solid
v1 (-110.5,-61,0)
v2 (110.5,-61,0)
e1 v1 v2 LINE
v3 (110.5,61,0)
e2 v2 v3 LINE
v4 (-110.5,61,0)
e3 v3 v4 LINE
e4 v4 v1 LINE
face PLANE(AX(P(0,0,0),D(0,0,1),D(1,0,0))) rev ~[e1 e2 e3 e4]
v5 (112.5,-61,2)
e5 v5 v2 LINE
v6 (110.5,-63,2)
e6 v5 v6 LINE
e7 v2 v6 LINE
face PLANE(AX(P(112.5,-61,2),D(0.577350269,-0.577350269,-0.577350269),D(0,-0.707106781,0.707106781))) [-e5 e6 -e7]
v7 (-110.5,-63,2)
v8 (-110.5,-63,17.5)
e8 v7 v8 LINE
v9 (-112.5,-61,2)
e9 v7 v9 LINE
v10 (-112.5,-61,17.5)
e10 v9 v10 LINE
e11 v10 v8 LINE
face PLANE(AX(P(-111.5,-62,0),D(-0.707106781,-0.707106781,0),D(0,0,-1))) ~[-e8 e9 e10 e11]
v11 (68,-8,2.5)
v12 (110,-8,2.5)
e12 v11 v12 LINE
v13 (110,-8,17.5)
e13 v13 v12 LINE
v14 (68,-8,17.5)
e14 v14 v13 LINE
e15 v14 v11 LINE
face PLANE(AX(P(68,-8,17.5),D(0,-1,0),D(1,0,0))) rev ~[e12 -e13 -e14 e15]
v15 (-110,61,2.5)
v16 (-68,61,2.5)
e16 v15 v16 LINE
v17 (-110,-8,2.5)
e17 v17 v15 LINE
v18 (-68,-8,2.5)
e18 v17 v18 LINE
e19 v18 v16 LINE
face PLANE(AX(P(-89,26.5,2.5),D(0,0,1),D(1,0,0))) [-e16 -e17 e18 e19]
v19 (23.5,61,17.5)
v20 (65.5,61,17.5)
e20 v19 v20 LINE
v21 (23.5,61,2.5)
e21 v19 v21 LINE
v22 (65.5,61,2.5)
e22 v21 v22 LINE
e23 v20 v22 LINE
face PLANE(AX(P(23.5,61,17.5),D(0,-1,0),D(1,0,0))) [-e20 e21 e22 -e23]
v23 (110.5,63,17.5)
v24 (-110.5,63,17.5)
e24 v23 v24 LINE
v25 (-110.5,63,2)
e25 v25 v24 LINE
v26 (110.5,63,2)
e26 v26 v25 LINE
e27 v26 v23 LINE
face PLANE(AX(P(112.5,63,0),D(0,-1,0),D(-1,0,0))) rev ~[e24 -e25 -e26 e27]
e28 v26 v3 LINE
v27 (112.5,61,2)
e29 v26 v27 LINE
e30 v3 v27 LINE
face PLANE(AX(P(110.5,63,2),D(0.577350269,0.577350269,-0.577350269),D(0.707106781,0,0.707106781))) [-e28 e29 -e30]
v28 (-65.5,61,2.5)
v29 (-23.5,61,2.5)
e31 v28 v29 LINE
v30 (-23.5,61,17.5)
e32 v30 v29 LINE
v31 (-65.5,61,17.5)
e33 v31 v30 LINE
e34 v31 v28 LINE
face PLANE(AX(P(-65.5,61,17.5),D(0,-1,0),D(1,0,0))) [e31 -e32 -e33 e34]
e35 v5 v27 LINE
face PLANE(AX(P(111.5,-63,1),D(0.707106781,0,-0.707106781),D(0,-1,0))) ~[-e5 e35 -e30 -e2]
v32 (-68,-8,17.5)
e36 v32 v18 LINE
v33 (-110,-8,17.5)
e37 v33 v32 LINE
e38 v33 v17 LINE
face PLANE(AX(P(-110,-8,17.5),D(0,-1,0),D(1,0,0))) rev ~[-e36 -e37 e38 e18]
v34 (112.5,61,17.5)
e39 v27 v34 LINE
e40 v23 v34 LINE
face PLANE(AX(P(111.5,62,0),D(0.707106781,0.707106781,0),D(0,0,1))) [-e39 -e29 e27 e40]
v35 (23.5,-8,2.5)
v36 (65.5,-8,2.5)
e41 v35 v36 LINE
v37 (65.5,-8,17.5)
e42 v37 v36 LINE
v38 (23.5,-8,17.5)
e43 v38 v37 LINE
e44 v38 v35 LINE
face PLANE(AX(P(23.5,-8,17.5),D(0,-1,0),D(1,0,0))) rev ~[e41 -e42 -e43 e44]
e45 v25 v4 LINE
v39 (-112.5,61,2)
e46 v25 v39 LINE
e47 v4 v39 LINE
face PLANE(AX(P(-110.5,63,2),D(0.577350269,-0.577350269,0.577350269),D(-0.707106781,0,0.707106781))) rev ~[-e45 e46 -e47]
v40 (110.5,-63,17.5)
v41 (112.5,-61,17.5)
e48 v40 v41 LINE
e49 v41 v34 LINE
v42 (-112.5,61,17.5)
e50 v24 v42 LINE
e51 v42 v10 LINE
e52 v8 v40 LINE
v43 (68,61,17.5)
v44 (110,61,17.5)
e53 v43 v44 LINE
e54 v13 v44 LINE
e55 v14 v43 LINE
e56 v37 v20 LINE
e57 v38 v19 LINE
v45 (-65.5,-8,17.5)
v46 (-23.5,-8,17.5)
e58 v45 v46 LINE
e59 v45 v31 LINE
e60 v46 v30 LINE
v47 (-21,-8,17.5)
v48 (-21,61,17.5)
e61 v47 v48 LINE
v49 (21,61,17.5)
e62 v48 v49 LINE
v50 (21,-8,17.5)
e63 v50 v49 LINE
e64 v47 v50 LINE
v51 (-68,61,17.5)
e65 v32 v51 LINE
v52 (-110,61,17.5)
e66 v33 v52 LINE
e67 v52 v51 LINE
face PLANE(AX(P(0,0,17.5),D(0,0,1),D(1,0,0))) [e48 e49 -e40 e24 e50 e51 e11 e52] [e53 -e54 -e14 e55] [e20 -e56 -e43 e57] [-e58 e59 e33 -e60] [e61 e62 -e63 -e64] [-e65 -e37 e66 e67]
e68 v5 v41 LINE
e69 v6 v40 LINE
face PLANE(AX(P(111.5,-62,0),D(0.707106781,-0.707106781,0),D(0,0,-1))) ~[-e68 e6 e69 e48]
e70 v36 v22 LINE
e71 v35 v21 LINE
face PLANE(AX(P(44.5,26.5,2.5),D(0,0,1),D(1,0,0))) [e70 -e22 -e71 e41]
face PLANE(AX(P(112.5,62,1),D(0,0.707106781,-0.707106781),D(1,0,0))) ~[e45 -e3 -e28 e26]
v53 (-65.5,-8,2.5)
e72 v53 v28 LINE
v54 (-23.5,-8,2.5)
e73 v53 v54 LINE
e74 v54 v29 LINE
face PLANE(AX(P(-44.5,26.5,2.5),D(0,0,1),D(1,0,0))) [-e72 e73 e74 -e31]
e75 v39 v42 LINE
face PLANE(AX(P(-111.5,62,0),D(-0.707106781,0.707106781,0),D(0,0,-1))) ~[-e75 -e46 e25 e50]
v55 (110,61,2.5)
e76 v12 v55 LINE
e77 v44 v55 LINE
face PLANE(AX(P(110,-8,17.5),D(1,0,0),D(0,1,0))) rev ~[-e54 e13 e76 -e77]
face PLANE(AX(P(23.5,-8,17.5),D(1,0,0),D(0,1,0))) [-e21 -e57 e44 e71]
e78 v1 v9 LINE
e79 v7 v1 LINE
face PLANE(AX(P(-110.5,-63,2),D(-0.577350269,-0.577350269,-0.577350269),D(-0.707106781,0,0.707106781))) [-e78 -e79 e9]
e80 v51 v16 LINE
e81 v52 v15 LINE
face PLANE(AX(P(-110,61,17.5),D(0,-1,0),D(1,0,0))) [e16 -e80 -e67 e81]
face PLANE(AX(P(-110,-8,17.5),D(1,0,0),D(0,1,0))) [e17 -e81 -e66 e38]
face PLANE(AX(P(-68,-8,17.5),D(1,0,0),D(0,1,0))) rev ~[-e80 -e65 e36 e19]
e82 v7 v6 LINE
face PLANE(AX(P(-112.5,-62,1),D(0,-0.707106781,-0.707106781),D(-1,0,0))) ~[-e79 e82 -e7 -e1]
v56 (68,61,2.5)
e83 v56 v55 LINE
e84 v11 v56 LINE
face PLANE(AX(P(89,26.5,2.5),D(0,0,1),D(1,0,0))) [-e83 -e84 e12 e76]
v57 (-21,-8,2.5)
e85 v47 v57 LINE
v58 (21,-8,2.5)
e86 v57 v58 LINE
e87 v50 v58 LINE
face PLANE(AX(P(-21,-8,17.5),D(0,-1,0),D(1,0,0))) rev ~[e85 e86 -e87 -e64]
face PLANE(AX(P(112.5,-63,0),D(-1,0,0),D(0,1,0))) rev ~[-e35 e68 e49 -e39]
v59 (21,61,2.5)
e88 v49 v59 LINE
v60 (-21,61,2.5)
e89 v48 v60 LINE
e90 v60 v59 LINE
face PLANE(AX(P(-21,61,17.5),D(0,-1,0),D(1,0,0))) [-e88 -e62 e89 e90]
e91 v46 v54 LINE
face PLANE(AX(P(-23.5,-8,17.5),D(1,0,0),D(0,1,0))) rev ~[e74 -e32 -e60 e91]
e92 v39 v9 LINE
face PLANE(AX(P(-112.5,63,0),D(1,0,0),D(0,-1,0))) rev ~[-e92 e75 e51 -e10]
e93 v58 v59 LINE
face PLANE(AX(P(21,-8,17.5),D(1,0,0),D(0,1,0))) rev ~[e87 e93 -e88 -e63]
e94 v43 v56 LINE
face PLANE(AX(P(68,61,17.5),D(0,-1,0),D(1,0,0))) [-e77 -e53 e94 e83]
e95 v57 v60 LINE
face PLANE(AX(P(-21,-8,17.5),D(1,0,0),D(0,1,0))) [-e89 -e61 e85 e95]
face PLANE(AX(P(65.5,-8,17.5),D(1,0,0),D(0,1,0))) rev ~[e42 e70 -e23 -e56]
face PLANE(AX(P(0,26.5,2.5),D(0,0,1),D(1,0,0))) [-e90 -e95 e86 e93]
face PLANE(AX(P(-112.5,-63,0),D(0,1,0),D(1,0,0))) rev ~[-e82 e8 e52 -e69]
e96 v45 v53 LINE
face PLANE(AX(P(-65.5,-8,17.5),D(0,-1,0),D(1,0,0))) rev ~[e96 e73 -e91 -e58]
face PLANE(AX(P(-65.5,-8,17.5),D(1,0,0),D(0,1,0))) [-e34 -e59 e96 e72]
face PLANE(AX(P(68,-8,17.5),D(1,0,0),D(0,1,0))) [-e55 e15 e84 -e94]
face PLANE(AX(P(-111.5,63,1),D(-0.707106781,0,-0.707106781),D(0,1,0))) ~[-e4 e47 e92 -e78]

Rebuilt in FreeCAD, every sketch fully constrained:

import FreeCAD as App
import Part
import Sketcher

V = App.Vector
Q = App.Units.Quantity


def edges_at(feature, points):
    """Names of the edges that pass closest to the given points."""
    edges = feature.Shape.Edges
    near = lambda p: min(range(len(edges)), key=lambda i: edges[i].distToShape(Part.Vertex(*p))[0])
    return sorted({f"Edge{near(p) + 1}" for p in points})


def add_polygon(sketch, points):
    """Adds a closed chain of lines whose ends are joined by coincident constraints."""
    first, n = sketch.GeometryCount, len(points)
    for a, b in zip(points, points[1:] + points[:1]):
        sketch.addGeometry(Part.LineSegment(App.Vector(*a, 0), App.Vector(*b, 0)), False)
    for i in range(n):
        sketch.addConstraint(Sketcher.Constraint("Coincident", first + i, 2, first + (i + 1) % n, 1))

doc = App.newDocument("Part")
body = doc.addObject("PartDesign::Body", "Body")

sketch1 = doc.addObject("Sketcher::SketchObject", "Sketch")
body.addObject(sketch1)
sketch1.AttachmentSupport = (doc.XY_Plane, [""])
sketch1.MapMode = "FlatFace"
add_polygon(sketch1, [(112.5, 63), (-112.5, 63), (-112.5, -63), (112.5, -63)])
sketch1.addConstraint([
    Sketcher.Constraint("Horizontal", 0),
    Sketcher.Constraint("Vertical", 1),
    Sketcher.Constraint("Horizontal", 2),
    Sketcher.Constraint("Vertical", 3),
    Sketcher.Constraint("Symmetric", 0, 2, 2, 2, -1, 1),
    Sketcher.Constraint("DistanceX", 0, 2, 0, 1, Q("225 mm")),
    Sketcher.Constraint("DistanceY", 1, 2, 1, 1, Q("126 mm")),
])
pad1 = doc.addObject("PartDesign::Pad", "Pad")
body.addObject(pad1)
pad1.Profile = sketch1
pad1.Length = 17.5
doc.recompute()

chamfer = doc.addObject("PartDesign::Chamfer", "Chamfer")
body.addObject(chamfer)
chamfer.Base = (pad1, edges_at(pad1, [
    (-112.5, 0, 0),
    (0, -63, 0),
    (112.5, 0, 0),
    (0, 63, 0),
    (-112.5, -63, 8.75),
    (112.5, -63, 8.75),
    (112.5, 63, 8.75),
    (-112.5, 63, 8.75),
]))
chamfer.Size = 2

sketch2 = doc.addObject("Sketcher::SketchObject", "Sketch001")
body.addObject(sketch2)
sketch2.AttachmentSupport = (doc.XY_Plane, [""])
sketch2.MapMode = "FlatFace"
sketch2.AttachmentOffset = App.Placement(V(0, 0, 17.5), App.Rotation())
add_polygon(sketch2, [(68, 61), (68, -8), (110, -8), (110, 61)])
add_polygon(sketch2, [(23.5, 61), (23.5, -8), (65.5, -8), (65.5, 61)])
add_polygon(sketch2, [(-21, 61), (-21, -8), (21, -8), (21, 61)])
add_polygon(sketch2, [(-65.5, 61), (-65.5, -8), (-23.5, -8), (-23.5, 61)])
add_polygon(sketch2, [(-110, 61), (-110, -8), (-68, -8), (-68, 61)])
sketch2.addConstraint([
    Sketcher.Constraint("Vertical", 0),
    Sketcher.Constraint("Horizontal", 1),
    Sketcher.Constraint("Vertical", 2),
    Sketcher.Constraint("Horizontal", 3),
    Sketcher.Constraint("Vertical", 4),
    Sketcher.Constraint("Horizontal", 5),
    Sketcher.Constraint("Vertical", 6),
    Sketcher.Constraint("Horizontal", 7),
    Sketcher.Constraint("Vertical", 8),
    Sketcher.Constraint("Horizontal", 9),
    Sketcher.Constraint("Vertical", 10),
    Sketcher.Constraint("Horizontal", 11),
    Sketcher.Constraint("Vertical", 12),
    Sketcher.Constraint("Horizontal", 13),
    Sketcher.Constraint("Vertical", 14),
    Sketcher.Constraint("Horizontal", 15),
    Sketcher.Constraint("Vertical", 16),
    Sketcher.Constraint("Horizontal", 17),
    Sketcher.Constraint("Vertical", 18),
    Sketcher.Constraint("Horizontal", 19),
    Sketcher.Constraint("Symmetric", 5, 2, 12, 2, -2),
    Sketcher.Constraint("Symmetric", 7, 2, 14, 2, -2),
    Sketcher.Constraint("Symmetric", 1, 2, 16, 2, -2),
    Sketcher.Constraint("Symmetric", 3, 2, 18, 2, -2),
    Sketcher.Constraint("Horizontal", 1, 2, 4, 2),
    Sketcher.Constraint("Horizontal", 3, 2, 6, 2),
    Sketcher.Constraint("Horizontal", 5, 2, 8, 2),
    Sketcher.Constraint("Horizontal", 7, 2, 10, 2),
    Sketcher.Constraint("Equal", 3, 5),
    Sketcher.Constraint("Equal", 7, 9),
    Sketcher.Constraint("DistanceX", 1, 1, 1, 2, Q("42 mm")),
    Sketcher.Constraint("DistanceY", 0, 2, 0, 1, Q("69 mm")),
    Sketcher.Constraint("DistanceX", -1, 1, 0, 2, Q("68 mm")),
    Sketcher.Constraint("DistanceY", 0, 2, -1, 1, Q("8 mm")),
    Sketcher.Constraint("DistanceX", 8, 2, -1, 1, Q("21 mm")),
    Sketcher.Constraint("DistanceX", 12, 2, 4, 2, Q("89 mm")),
])
pocket1 = doc.addObject("PartDesign::Pocket", "Pocket")
body.addObject(pocket1)
pocket1.Profile = sketch2
pocket1.Length = 15

doc.recompute()
